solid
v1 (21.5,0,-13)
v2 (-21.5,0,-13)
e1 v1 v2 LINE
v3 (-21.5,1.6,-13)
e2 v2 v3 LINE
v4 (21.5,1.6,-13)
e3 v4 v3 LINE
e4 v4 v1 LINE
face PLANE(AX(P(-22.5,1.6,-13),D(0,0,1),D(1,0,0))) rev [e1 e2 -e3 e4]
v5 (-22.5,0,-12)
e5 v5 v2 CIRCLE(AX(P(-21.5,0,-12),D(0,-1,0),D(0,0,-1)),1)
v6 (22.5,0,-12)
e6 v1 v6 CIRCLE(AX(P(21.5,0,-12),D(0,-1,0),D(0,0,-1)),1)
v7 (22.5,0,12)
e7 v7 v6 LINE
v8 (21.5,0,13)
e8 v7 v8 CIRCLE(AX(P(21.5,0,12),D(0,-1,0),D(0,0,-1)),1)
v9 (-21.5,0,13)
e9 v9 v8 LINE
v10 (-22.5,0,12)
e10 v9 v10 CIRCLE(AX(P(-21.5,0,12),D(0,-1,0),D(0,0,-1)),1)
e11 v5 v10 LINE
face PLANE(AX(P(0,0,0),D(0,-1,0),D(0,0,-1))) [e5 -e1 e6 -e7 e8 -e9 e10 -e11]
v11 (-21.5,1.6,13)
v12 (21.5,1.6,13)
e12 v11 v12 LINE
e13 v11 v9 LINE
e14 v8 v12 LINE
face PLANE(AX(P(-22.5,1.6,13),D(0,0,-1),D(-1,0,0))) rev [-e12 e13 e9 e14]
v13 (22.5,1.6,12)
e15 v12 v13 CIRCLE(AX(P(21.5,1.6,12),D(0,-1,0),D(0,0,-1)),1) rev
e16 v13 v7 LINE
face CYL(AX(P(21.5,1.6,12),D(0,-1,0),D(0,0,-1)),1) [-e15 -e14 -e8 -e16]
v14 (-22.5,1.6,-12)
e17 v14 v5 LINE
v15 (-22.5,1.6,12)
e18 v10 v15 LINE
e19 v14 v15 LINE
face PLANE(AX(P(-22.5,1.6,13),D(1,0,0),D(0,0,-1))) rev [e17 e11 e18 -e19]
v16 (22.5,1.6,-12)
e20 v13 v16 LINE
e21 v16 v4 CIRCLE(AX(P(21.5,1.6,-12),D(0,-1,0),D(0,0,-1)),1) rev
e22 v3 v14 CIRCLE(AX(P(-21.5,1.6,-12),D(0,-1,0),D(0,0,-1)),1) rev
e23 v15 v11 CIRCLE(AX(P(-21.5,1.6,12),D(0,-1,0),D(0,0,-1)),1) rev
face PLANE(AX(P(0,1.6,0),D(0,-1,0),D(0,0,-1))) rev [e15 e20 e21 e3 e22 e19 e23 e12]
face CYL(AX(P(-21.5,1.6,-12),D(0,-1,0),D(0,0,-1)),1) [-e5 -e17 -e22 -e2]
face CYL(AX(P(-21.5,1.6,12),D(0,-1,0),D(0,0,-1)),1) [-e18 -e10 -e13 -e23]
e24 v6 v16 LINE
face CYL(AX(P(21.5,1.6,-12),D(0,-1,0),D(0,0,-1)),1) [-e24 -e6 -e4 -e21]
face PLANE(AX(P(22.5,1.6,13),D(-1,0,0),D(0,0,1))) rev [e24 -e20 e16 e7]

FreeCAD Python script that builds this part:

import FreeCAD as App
import Part
import Sketcher
from FreeCAD import Vector
Q = App.Units.Quantity


def edges_at(feature, points):
    """Names of the edges that pass closest to the given points."""
    edges = feature.Shape.Edges
    near = lambda p: min(range(len(edges)), key=lambda i: edges[i].distToShape(Part.Vertex(*p))[0])
    return sorted({f"Edge{near(p) + 1}" for p in points})

doc = App.newDocument("Part")
body = doc.addObject("PartDesign::Body", "Body")

sketch1 = doc.addObject("Sketcher::SketchObject", "Sketch")
body.addObject(sketch1)
sketch1.AttachmentSupport = (doc.XZ_Plane, [""])
sketch1.MapMode = "FlatFace"
sketch1.addGeometry([
    Part.LineSegment(Vector(-22, -13, 0), Vector(-22, 13, 0)),
    Part.LineSegment(Vector(-22, 13, 0), Vector(22, 13, 0)),
    Part.LineSegment(Vector(22, 13, 0), Vector(22, -13, 0)),
    Part.LineSegment(Vector(22, -13, 0), Vector(-22, -13, 0)),
], False)
sketch1.addConstraint([
    Sketcher.Constraint("Coincident", 0, 2, 1, 1),
    Sketcher.Constraint("Coincident", 1, 2, 2, 1),
    Sketcher.Constraint("Coincident", 2, 2, 3, 1),
    Sketcher.Constraint("Coincident", 3, 2, 0, 1),
    Sketcher.Constraint("Vertical", 0),
    Sketcher.Constraint("Horizontal", 1),
    Sketcher.Constraint("Vertical", 2),
    Sketcher.Constraint("Horizontal", 3),
    Sketcher.Constraint("Symmetric", 0, 2, 2, 2, -1, 1),
    Sketcher.Constraint("DistanceX", 1, 1, 1, 2, Q("45 mm")),
    Sketcher.Constraint("DistanceY", 0, 1, 0, 2, Q("26 mm")),
])
pad1 = doc.addObject("PartDesign::Pad", "Pad")
body.addObject(pad1)
pad1.Profile = sketch1
pad1.Length = 1.6
pad1.Reversed = True
doc.recompute()

fillet = doc.addObject("PartDesign::Fillet", "Fillet")
body.addObject(fillet)
fillet.Base = (pad1, edges_at(pad1, [
    (22.5, 0.8, 13),
    (-22.5, 0.8, 13),
    (-22.5, 0.8, -13),
    (22.5, 0.8, -13),
]))
fillet.Radius = 1

doc.recompute()
